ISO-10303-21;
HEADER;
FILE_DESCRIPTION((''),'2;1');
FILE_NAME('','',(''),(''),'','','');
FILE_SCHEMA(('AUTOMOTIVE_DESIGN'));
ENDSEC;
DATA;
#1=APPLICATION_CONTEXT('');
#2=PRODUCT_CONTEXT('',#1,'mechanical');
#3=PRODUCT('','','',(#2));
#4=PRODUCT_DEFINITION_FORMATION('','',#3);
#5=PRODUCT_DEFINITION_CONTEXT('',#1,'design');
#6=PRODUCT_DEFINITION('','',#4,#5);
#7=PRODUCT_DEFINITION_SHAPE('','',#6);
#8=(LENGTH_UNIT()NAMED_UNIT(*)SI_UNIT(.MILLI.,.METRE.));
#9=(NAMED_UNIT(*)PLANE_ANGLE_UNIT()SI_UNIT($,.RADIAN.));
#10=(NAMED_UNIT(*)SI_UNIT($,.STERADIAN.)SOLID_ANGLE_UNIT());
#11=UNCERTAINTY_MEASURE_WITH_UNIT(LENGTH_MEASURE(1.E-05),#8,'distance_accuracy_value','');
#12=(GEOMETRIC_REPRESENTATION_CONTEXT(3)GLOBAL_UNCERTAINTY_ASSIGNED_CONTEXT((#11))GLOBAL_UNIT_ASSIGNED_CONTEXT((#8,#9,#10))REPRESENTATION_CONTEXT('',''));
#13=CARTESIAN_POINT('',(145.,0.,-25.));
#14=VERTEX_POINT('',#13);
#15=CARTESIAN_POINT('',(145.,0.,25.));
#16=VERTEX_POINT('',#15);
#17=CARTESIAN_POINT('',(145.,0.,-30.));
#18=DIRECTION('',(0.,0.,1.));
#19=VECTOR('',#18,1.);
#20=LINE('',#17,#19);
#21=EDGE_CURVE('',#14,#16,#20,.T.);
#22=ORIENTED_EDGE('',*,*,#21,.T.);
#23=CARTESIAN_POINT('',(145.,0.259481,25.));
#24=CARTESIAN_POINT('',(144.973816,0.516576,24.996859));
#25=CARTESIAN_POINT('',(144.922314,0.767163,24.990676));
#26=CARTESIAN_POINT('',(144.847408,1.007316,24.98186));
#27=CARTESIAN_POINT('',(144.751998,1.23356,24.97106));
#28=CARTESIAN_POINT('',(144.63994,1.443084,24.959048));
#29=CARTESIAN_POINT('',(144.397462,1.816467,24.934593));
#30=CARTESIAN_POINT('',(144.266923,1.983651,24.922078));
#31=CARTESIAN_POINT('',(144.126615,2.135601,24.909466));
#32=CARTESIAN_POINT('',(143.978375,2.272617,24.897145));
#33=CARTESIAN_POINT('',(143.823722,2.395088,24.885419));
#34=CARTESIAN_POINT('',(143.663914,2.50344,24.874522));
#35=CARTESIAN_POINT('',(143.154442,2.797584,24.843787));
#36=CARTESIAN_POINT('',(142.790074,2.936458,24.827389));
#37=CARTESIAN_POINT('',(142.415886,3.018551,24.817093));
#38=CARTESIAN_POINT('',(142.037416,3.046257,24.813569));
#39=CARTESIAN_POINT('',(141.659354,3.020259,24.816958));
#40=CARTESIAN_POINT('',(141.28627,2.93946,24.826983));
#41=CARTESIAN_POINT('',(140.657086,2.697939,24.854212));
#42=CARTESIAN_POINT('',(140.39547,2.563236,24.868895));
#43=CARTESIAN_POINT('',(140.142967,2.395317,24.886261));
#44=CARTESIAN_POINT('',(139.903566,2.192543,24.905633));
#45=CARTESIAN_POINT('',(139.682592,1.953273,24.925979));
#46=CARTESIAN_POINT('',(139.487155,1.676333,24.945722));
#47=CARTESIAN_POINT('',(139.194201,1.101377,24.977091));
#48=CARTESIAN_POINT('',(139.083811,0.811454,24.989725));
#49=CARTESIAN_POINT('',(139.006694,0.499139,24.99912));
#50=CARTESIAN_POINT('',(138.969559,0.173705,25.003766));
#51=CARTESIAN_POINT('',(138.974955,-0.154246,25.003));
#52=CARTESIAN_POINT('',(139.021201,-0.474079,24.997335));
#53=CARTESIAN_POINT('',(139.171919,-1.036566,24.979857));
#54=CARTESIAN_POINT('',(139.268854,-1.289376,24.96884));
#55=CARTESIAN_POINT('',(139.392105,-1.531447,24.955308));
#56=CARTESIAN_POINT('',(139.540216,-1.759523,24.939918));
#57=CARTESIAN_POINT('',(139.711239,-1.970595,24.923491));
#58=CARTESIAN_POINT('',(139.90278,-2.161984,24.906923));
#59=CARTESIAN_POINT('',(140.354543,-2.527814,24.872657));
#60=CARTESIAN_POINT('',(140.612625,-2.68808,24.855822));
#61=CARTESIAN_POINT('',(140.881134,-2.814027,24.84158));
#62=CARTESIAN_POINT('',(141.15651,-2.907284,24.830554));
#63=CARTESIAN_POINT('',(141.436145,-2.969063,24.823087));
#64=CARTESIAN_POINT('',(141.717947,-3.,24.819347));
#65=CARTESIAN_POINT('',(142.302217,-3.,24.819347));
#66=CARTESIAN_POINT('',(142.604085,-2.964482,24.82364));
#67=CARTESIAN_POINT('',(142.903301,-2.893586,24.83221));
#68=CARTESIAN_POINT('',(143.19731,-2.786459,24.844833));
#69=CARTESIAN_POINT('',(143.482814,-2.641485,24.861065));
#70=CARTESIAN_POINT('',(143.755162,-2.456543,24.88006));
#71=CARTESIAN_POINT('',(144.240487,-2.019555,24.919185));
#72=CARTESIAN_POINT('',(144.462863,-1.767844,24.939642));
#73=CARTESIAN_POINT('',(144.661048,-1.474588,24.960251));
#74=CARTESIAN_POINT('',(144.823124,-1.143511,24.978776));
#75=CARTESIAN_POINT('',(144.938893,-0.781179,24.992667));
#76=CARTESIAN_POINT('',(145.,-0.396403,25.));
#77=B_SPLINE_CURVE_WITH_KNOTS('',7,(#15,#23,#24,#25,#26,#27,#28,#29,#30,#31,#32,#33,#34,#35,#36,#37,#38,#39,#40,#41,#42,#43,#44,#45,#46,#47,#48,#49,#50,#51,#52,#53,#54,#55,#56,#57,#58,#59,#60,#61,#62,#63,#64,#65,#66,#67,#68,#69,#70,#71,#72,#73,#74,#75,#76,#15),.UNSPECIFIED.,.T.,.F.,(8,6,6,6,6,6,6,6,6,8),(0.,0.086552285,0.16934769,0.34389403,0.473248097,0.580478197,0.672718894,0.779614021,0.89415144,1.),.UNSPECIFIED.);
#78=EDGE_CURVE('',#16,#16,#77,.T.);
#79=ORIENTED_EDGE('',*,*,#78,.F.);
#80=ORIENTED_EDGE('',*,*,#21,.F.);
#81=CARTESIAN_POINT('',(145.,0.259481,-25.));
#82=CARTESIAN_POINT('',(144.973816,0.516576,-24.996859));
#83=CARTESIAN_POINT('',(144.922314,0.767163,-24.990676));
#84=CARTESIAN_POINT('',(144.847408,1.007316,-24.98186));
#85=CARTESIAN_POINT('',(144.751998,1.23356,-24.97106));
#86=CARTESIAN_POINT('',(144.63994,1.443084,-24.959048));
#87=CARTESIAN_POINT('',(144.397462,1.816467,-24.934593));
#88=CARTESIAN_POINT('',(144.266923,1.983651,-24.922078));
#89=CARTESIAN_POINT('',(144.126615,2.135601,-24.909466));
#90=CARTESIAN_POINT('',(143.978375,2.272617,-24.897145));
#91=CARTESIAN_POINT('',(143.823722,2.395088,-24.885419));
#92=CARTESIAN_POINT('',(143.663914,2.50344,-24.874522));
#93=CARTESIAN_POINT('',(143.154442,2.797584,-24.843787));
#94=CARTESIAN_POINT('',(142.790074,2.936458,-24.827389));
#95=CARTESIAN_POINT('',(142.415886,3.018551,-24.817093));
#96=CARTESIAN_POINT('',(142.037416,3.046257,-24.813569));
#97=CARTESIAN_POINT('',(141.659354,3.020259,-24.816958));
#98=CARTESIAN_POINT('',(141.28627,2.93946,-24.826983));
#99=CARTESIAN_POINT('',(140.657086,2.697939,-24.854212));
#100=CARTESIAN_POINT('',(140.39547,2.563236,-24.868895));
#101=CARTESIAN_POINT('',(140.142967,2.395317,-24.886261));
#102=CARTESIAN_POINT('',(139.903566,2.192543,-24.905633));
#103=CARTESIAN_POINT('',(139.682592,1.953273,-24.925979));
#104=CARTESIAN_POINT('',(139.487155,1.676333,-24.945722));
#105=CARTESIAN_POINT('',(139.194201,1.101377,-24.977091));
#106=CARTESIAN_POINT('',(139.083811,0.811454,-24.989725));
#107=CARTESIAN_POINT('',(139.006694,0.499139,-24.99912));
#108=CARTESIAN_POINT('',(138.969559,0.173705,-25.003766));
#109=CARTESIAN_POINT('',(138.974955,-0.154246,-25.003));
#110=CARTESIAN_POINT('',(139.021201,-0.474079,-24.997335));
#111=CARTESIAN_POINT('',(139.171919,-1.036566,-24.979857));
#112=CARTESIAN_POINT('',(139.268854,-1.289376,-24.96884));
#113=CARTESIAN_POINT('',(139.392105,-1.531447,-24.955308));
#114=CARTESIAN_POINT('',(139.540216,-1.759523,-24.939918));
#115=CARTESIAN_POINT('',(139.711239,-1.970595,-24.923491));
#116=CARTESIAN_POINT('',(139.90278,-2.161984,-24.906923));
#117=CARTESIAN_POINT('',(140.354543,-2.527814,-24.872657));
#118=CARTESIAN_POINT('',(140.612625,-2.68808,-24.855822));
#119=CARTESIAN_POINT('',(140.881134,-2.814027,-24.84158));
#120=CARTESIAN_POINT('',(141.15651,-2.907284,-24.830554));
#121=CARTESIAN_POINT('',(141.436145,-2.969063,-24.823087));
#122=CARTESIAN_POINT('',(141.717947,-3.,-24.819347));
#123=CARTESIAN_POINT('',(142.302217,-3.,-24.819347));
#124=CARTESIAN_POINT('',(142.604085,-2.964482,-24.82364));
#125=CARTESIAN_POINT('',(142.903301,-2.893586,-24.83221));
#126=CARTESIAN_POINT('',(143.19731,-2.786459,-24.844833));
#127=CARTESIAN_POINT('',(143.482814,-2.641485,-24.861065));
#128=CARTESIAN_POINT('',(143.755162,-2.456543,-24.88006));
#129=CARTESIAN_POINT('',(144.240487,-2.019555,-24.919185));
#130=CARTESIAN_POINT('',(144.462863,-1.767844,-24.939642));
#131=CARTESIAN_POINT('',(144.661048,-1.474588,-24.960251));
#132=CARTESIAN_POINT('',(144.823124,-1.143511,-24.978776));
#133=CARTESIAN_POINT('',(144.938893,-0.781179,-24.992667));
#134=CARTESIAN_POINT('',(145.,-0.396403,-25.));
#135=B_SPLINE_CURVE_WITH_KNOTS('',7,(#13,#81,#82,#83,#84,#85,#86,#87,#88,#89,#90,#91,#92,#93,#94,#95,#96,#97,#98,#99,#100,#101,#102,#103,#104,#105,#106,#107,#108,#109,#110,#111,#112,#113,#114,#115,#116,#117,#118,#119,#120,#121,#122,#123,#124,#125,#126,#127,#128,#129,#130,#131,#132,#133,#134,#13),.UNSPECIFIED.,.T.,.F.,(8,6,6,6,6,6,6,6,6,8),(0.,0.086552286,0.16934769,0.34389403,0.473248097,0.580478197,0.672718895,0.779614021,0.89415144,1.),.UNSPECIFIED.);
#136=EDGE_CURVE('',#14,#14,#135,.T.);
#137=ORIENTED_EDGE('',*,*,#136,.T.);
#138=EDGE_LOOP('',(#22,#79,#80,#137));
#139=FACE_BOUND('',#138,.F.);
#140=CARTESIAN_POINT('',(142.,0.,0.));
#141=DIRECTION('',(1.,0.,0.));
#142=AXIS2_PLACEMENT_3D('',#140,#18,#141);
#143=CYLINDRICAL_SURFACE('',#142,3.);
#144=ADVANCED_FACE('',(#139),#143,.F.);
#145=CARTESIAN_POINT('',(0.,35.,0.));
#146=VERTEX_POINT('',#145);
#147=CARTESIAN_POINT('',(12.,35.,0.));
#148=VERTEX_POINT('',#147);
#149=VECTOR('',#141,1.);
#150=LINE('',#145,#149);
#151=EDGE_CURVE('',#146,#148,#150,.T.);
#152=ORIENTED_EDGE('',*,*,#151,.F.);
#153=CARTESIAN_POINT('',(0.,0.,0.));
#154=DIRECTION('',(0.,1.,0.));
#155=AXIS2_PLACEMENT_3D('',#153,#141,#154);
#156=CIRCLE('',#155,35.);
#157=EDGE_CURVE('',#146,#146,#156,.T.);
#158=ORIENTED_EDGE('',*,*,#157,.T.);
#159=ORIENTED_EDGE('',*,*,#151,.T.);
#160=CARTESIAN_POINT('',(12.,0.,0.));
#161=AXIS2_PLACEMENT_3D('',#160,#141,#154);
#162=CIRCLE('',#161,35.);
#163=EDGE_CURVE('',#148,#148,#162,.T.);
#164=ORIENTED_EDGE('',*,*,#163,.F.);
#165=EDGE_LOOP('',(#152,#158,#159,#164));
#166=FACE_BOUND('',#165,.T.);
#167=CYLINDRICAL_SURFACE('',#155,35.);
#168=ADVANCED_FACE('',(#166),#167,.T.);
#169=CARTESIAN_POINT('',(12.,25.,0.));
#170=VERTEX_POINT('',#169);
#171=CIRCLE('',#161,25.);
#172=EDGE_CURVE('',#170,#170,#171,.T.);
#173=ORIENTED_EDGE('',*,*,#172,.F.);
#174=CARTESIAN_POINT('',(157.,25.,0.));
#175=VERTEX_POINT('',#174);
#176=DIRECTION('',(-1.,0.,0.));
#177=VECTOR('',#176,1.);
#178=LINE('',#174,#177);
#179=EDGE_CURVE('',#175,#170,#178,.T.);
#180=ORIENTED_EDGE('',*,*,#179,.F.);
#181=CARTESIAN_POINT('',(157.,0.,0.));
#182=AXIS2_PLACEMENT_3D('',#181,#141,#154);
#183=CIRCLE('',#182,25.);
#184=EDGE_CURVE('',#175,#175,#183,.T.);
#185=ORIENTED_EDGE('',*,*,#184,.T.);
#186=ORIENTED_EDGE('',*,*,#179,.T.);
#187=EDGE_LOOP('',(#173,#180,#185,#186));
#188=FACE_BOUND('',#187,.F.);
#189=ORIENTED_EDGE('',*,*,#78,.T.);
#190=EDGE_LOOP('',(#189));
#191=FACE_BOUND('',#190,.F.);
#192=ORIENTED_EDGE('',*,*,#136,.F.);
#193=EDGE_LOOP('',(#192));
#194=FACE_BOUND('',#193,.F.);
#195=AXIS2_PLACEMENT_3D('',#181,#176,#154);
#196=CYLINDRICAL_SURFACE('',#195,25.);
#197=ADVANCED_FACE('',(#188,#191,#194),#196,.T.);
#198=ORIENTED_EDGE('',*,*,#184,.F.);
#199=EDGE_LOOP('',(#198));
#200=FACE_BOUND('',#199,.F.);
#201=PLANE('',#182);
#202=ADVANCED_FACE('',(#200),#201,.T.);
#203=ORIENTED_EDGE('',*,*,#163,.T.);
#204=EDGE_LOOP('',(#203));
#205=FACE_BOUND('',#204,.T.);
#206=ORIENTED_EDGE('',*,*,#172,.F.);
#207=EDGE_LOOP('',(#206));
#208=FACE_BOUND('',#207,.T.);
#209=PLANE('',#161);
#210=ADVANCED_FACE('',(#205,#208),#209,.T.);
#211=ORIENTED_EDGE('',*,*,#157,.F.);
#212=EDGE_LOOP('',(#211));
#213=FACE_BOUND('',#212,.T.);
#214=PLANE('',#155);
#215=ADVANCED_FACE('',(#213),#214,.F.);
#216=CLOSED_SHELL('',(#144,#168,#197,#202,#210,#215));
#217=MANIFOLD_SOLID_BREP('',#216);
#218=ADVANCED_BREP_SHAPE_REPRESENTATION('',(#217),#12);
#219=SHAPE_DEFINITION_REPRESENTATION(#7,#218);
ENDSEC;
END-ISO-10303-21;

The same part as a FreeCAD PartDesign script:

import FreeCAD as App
import Part
import Sketcher
from FreeCAD import Vector
Q = App.Units.Quantity


def add_polygon(sketch, points):
    """Adds a closed chain of lines whose ends are joined by coincident constraints."""
    first, n = sketch.GeometryCount, len(points)
    for a, b in zip(points, points[1:] + points[:1]):
        sketch.addGeometry(Part.LineSegment(App.Vector(*a, 0), App.Vector(*b, 0)), False)
    for i in range(n):
        sketch.addConstraint(Sketcher.Constraint("Coincident", first + i, 2, first + (i + 1) % n, 1))

doc = App.newDocument("Part")
body = doc.addObject("PartDesign::Body", "Body")

# Sketch on XY plane
sketch1 = doc.addObject("Sketcher::SketchObject", "Sketch")
body.addObject(sketch1)
sketch1.AttachmentSupport = (doc.XY_Plane, [""])
sketch1.MapMode = "FlatFace"
add_polygon(sketch1, [(0, 35), (0, 0), (157, 0), (157, 25), (12, 25), (12, 35)])  # lines 0-5
sketch1.addConstraint(Sketcher.Constraint("Vertical", 0))
sketch1.addConstraint(Sketcher.Constraint("Horizontal", 1))
sketch1.addConstraint(Sketcher.Constraint("Vertical", 2))
sketch1.addConstraint(Sketcher.Constraint("Horizontal", 3))
sketch1.addConstraint(Sketcher.Constraint("Vertical", 4))
sketch1.addConstraint(Sketcher.Constraint("Horizontal", 5))
sketch1.addConstraint(Sketcher.Constraint("Coincident", 0, 2, -1, 1))
sketch1.addConstraint(Sketcher.Constraint("DistanceX", 1, 1, 1, 2, Q("157 mm")))
sketch1.addConstraint(Sketcher.Constraint("DistanceX", 5, 2, 5, 1, Q("12 mm")))
sketch1.addConstraint(Sketcher.Constraint("DistanceY", 0, 2, 0, 1, Q("35 mm")))
sketch1.addConstraint(Sketcher.Constraint("DistanceY", 2, 1, 2, 2, Q("25 mm")))
revolution = doc.addObject("PartDesign::Revolution", "Revolution")
body.addObject(revolution)
revolution.Profile = sketch1
revolution.ReferenceAxis = (sketch1, ["H_Axis"])
revolution.Angle = 360

# Sketch on XY plane
sketch2 = doc.addObject("Sketcher::SketchObject", "Sketch001")
body.addObject(sketch2)
sketch2.AttachmentSupport = (doc.XY_Plane, [""])
sketch2.MapMode = "FlatFace"
sketch2.addGeometry(Part.Circle(Vector(142, 0, 0), Vector(0, 0, 1), 3), False)
sketch2.addConstraint(Sketcher.Constraint("PointOnObject", 0, 3, -1))
sketch2.addConstraint(Sketcher.Constraint("Diameter", 0, Q("6 mm")))
sketch2.addConstraint(Sketcher.Constraint("DistanceX", -1, 1, 0, 3, Q("142 mm")))
pocket1 = doc.addObject("PartDesign::Pocket", "Pocket")
body.addObject(pocket1)
pocket1.Profile = sketch2
pocket1.Type = "ThroughAll"
pocket1.Midplane = True

doc.recompute()
